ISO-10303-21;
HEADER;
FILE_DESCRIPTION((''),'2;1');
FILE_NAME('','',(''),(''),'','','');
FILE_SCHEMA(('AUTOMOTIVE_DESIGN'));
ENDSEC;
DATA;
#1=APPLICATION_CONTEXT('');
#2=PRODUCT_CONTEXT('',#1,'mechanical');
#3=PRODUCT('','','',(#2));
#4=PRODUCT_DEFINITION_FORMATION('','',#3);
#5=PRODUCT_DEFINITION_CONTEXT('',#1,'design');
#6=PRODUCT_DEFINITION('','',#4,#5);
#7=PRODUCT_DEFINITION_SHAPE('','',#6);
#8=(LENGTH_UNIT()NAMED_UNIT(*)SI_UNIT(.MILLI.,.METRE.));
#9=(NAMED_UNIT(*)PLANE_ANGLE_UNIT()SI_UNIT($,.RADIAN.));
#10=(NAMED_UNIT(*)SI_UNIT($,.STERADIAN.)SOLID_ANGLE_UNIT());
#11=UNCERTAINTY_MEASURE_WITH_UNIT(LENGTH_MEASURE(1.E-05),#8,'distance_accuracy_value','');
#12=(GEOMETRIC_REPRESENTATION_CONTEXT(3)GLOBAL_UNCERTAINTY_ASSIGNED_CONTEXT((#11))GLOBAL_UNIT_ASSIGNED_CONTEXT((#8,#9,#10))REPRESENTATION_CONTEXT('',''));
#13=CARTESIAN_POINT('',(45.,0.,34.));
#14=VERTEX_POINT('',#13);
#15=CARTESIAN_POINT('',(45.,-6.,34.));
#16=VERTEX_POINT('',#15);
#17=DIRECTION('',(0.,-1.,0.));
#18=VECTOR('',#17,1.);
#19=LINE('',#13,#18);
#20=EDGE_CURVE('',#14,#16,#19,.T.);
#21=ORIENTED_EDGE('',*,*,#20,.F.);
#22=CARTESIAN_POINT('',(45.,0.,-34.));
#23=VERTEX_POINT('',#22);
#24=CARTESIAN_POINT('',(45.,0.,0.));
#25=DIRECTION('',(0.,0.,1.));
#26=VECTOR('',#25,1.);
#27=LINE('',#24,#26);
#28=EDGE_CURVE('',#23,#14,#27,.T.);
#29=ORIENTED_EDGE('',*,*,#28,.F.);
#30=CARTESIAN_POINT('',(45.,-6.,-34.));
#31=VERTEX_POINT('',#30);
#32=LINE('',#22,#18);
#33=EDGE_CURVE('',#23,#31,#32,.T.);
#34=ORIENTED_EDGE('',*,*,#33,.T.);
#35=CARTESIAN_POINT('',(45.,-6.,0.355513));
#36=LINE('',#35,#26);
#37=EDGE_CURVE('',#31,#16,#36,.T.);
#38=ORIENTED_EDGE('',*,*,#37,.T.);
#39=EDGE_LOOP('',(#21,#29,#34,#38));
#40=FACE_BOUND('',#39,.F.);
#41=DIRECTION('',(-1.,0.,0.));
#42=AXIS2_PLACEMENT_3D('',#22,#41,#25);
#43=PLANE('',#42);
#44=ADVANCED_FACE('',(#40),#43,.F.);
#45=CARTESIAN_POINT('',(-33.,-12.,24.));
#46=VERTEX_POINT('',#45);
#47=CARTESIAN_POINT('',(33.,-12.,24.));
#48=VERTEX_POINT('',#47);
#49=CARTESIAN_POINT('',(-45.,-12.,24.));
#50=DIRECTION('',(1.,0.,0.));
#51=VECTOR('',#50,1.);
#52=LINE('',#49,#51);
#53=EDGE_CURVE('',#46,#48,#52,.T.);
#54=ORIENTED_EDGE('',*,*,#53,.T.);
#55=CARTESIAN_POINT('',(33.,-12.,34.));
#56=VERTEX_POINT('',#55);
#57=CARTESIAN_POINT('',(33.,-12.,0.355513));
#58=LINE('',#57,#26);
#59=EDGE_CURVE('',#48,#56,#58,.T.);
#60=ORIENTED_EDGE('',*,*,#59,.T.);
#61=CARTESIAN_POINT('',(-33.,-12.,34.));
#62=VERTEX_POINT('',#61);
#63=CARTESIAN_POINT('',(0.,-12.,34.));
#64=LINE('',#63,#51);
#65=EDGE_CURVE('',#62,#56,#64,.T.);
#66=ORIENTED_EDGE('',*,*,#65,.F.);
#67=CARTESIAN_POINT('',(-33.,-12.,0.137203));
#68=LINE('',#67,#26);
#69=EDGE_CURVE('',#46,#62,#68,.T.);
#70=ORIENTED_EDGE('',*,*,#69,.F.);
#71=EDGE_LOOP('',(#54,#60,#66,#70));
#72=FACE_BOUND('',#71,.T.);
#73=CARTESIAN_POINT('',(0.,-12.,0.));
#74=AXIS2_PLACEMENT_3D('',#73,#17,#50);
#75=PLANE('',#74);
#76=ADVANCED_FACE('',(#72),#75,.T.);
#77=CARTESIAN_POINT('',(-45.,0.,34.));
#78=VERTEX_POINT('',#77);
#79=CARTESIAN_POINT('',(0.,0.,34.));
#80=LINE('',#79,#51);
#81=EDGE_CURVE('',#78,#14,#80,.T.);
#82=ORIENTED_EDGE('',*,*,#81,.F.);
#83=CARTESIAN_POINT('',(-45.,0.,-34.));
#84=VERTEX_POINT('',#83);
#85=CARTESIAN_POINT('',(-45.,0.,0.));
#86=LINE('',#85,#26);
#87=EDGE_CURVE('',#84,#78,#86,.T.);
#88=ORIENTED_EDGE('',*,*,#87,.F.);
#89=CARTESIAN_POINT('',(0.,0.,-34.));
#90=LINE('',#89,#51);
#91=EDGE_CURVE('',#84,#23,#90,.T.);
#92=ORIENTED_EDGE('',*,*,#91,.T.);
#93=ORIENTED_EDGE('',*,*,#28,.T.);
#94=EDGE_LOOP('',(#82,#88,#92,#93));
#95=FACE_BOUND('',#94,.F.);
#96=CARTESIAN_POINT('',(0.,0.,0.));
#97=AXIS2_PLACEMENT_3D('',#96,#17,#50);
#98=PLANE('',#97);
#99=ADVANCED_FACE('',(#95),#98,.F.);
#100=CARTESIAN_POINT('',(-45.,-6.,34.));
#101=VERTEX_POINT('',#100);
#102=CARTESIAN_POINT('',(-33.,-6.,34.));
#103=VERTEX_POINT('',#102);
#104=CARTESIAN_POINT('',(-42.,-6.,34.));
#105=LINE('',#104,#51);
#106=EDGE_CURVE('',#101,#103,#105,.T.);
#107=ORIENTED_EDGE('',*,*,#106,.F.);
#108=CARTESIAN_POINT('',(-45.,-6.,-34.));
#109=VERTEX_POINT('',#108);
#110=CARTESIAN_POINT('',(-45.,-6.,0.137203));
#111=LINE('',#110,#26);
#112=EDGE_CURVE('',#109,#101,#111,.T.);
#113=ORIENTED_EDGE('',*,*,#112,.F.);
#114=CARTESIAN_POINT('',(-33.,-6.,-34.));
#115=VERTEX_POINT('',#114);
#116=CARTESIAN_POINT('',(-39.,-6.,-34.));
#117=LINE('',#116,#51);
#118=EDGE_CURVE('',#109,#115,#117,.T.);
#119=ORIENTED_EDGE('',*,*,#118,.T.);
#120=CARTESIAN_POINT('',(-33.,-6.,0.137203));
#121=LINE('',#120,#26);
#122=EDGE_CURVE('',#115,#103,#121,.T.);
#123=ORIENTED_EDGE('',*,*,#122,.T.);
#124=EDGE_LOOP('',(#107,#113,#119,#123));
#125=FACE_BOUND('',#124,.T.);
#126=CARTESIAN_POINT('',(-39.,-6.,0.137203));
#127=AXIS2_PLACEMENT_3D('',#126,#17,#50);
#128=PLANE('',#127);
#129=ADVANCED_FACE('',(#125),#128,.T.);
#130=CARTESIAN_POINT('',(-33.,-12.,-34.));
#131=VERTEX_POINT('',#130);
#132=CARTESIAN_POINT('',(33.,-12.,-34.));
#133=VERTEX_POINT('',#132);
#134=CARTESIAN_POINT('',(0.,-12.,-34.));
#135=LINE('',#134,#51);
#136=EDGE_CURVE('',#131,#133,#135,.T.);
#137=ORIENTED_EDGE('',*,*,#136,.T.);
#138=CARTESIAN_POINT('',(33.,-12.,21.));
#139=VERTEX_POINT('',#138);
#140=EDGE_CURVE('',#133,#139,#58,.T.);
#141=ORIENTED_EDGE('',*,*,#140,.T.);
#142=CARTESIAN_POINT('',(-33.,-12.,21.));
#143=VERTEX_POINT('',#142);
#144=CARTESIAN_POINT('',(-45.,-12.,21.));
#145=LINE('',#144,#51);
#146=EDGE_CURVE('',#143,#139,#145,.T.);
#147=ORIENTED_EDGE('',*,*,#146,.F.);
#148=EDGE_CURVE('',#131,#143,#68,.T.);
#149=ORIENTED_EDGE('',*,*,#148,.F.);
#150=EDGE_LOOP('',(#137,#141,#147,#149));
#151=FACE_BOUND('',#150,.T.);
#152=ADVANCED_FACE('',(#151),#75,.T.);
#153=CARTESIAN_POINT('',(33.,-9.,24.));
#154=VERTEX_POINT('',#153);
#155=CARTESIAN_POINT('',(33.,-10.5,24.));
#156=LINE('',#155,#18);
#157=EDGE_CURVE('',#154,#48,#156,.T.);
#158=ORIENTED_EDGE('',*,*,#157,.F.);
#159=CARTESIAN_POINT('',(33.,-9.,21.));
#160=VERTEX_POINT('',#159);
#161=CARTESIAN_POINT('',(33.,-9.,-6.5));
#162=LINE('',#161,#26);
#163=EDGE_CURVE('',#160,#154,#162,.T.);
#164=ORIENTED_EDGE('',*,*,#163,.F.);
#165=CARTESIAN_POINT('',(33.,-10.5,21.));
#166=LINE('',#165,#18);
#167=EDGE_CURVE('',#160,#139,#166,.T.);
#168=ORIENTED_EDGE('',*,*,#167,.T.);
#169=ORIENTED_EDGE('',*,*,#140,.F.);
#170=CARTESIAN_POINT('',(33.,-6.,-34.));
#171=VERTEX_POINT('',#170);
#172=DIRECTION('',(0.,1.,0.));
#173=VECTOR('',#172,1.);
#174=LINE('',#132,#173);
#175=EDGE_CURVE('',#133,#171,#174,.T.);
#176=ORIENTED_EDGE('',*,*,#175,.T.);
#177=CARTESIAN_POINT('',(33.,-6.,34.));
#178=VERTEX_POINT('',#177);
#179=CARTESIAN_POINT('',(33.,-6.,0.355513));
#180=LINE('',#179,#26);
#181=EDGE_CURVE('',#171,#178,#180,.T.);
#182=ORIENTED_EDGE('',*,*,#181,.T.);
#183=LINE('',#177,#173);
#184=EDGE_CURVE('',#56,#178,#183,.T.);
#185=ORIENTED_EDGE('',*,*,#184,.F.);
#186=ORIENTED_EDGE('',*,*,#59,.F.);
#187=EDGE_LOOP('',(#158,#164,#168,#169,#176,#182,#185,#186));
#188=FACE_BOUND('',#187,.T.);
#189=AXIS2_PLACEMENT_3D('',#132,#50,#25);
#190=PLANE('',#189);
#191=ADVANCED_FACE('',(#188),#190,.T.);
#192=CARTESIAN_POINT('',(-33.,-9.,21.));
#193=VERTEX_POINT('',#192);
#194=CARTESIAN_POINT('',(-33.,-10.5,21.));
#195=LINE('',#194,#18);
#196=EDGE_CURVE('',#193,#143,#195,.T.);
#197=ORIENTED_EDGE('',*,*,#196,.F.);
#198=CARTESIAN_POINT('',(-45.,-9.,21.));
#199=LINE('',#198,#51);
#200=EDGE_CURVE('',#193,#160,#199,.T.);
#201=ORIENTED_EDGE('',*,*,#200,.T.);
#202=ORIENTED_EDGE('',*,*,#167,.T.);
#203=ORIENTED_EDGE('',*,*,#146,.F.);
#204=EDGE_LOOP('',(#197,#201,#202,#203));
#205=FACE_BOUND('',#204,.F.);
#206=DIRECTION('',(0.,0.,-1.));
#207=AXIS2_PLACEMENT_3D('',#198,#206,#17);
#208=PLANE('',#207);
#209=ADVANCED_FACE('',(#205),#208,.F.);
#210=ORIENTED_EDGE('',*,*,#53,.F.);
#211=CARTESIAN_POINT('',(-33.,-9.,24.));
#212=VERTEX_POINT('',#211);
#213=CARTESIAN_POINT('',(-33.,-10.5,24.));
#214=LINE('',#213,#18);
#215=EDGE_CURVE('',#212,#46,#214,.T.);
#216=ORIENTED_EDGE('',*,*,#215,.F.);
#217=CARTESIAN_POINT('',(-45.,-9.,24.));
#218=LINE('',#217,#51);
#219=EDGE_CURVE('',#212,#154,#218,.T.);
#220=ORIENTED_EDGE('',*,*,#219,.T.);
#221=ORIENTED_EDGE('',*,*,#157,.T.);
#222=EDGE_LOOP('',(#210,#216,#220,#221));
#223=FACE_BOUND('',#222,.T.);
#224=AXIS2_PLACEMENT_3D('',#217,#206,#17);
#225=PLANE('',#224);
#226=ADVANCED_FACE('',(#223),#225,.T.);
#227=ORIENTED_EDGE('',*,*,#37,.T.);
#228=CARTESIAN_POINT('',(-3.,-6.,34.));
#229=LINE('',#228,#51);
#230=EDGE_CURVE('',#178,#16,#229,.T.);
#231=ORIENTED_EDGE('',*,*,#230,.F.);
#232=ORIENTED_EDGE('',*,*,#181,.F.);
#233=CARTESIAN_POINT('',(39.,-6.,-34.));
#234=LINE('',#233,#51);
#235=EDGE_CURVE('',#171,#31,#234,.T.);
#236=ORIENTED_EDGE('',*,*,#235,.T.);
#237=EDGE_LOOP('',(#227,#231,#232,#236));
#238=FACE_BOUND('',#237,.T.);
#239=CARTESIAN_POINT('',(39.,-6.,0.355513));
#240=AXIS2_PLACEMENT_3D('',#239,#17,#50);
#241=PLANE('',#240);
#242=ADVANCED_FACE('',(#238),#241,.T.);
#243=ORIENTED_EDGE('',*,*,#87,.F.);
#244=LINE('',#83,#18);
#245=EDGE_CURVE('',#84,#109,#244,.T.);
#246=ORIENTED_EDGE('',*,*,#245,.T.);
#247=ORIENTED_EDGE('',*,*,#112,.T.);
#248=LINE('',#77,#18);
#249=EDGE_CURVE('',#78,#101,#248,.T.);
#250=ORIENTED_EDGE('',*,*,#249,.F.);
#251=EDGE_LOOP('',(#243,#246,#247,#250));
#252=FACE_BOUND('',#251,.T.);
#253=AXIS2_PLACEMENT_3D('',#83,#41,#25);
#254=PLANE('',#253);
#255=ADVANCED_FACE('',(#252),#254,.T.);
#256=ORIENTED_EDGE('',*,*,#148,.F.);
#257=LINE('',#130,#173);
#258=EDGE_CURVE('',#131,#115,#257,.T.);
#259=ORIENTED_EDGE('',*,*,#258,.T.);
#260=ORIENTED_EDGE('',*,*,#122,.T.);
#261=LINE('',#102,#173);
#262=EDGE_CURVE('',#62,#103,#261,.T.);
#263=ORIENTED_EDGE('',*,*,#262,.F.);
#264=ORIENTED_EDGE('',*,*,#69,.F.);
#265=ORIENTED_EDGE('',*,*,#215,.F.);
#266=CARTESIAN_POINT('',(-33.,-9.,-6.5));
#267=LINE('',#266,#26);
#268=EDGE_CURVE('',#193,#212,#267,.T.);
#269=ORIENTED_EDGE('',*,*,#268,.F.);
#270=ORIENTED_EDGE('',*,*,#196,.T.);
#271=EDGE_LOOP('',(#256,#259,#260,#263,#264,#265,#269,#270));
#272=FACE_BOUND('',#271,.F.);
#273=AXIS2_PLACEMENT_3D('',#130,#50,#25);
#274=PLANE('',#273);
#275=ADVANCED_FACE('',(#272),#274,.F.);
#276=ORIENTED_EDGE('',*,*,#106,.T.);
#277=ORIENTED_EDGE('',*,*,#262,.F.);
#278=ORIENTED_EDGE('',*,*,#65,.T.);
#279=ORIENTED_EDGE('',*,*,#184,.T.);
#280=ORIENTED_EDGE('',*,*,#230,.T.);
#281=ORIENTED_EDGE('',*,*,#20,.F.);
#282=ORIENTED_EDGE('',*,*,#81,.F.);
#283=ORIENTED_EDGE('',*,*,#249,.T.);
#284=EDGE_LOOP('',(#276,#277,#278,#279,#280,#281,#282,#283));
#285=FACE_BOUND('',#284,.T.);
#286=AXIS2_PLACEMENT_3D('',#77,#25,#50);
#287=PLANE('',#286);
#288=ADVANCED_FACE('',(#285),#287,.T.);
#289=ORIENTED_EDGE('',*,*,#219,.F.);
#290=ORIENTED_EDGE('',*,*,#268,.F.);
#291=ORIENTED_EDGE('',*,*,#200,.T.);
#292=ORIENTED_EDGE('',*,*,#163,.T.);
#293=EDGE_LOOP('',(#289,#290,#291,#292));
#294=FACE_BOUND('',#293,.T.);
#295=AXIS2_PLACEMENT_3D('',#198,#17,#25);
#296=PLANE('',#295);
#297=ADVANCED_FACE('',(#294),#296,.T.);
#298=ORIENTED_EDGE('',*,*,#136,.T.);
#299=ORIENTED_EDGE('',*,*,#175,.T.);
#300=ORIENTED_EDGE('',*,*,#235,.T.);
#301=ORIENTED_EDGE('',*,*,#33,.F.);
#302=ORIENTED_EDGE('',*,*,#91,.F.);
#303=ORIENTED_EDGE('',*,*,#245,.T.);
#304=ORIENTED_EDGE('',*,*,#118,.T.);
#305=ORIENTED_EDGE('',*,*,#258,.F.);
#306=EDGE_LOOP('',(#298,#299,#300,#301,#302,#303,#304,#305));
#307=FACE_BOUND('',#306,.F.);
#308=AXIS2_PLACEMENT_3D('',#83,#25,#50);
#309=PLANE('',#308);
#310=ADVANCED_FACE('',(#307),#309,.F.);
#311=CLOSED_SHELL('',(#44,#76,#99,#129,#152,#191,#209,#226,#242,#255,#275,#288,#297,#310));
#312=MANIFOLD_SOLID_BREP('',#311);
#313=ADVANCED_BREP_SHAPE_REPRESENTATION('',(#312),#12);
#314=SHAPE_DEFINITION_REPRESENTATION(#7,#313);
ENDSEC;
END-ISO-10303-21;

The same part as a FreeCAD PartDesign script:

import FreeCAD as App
import Part
import Sketcher
from FreeCAD import Vector


def add_polygon(sketch, points):
    """Adds a closed chain of lines whose ends are joined by coincident constraints."""
    first, n = sketch.GeometryCount, len(points)
    for a, b in zip(points, points[1:] + points[:1]):
        sketch.addGeometry(Part.LineSegment(App.Vector(*a, 0), App.Vector(*b, 0)), False)
    for i in range(n):
        sketch.addConstraint(Sketcher.Constraint("Coincident", first + i, 2, first + (i + 1) % n, 1))

doc = App.newDocument("Part")
body = doc.addObject("PartDesign::Body", "Body")

# Sketch on XZ plane
sketch1 = body.newObject("Sketcher::SketchObject", "Sketch")
sketch1.AttachmentSupport = (doc.getObject("XZ_Plane"), [""])
sketch1.MapMode = "FlatFace"
add_polygon(sketch1, [(-20, 34), (-20, -34), (20, -34), (20, 34)])  # lines 0-3
sketch1.addConstraint(Sketcher.Constraint("Vertical", 0))
sketch1.addConstraint(Sketcher.Constraint("Horizontal", 1))
sketch1.addConstraint(Sketcher.Constraint("Vertical", 2))
sketch1.addConstraint(Sketcher.Constraint("Horizontal", 3))
sketch1.addConstraint(Sketcher.Constraint("Symmetric", 0, 2, 2, 2, -1, 1))
sketch1.addConstraint(Sketcher.Constraint("DistanceX", 1, 1, 1, 2, 40.0))
sketch1.addConstraint(Sketcher.Constraint("DistanceY", 0, 2, 0, 1, 68.0))
pad1 = body.newObject("PartDesign::Pad", "Pad")
pad1.Profile = sketch1
pad1.Length = 12

# Sketch on YZ plane
sketch2 = body.newObject("Sketcher::SketchObject", "Sketch001")
sketch2.AttachmentSupport = (doc.getObject("YZ_Plane"), [""])
sketch2.MapMode = "FlatFace"
sketch2.AttachmentOffset = App.Placement(Vector(0, 0, 20), App.Rotation())
add_polygon(sketch2, [(-12, 24), (-12, 21), (-7, 21), (-7, 24)])  # lines 0-3
sketch2.addConstraint(Sketcher.Constraint("Vertical", 0))
sketch2.addConstraint(Sketcher.Constraint("Horizontal", 1))
sketch2.addConstraint(Sketcher.Constraint("Vertical", 2))
sketch2.addConstraint(Sketcher.Constraint("Horizontal", 3))
sketch2.addConstraint(Sketcher.Constraint("DistanceX", 1, 1, 1, 2, 5.0))
sketch2.addConstraint(Sketcher.Constraint("DistanceY", 0, 2, 0, 1, 3.0))
sketch2.addConstraint(Sketcher.Constraint("DistanceX", 0, 2, -1, 1, 12.0))
sketch2.addConstraint(Sketcher.Constraint("DistanceY", -1, 1, 0, 2, 21.0))
pocket1 = body.newObject("PartDesign::Pocket", "Pocket")
pocket1.Profile = sketch2
pocket1.Length = 59
body2 = doc.addObject("PartDesign::Body", "Body001")

# Sketch on XZ plane
sketch3 = body2.newObject("Sketcher::SketchObject", "Sketch002")
sketch3.AttachmentSupport = (doc.getObject("XZ_Plane001"), [""])
sketch3.MapMode = "FlatFace"
add_polygon(sketch3, [(-45, 34), (-45, -34), (45, -34), (45, 34)])  # lines 0-3
sketch3.addConstraint(Sketcher.Constraint("Vertical", 0))
sketch3.addConstraint(Sketcher.Constraint("Horizontal", 1))
sketch3.addConstraint(Sketcher.Constraint("Vertical", 2))
sketch3.addConstraint(Sketcher.Constraint("Horizontal", 3))
sketch3.addConstraint(Sketcher.Constraint("Symmetric", 0, 2, 2, 2, -1, 1))
sketch3.addConstraint(Sketcher.Constraint("DistanceX", 1, 1, 1, 2, 90.0))
sketch3.addConstraint(Sketcher.Constraint("DistanceY", 0, 2, 0, 1, 68.0))
pad2 = body2.newObject("PartDesign::Pad", "Pad001")
pad2.Profile = sketch3
pad2.Length = 12

# Sketch on YZ plane
sketch4 = body2.newObject("Sketcher::SketchObject", "Sketch003")
sketch4.AttachmentSupport = (doc.getObject("YZ_Plane001"), [""])
sketch4.MapMode = "FlatFace"
sketch4.AttachmentOffset = App.Placement(Vector(0, 0, -45), App.Rotation())
add_polygon(sketch4, [(-9, 24), (-9, 21), (-12, 21), (-12, 24)])  # lines 0-3
sketch4.addConstraint(Sketcher.Constraint("Vertical", 0))
sketch4.addConstraint(Sketcher.Constraint("Horizontal", 1))
sketch4.addConstraint(Sketcher.Constraint("Vertical", 2))
sketch4.addConstraint(Sketcher.Constraint("Horizontal", 3))
sketch4.addConstraint(Sketcher.Constraint("Equal", 3, 0))
sketch4.addConstraint(Sketcher.Constraint("DistanceX", 1, 2, 1, 1, 3.0))
sketch4.addConstraint(Sketcher.Constraint("DistanceX", 0, 2, -1, 1, 9.0))
sketch4.addConstraint(Sketcher.Constraint("DistanceY", -1, 1, 0, 2, 21.0))
pocket2 = body2.newObject("PartDesign::Pocket", "Pocket001")
pocket2.Profile = sketch4
pocket2.Length = 200
pocket2.Reversed = True

# Sketch on XZ plane
sketch5 = body2.newObject("Sketcher::SketchObject", "Sketch004")
sketch5.AttachmentSupport = (doc.getObject("XZ_Plane001"), [""])
sketch5.MapMode = "FlatFace"
sketch5.AttachmentOffset = App.Placement(Vector(0, 0, 12), App.Rotation())
add_polygon(sketch5, [(-45, 34), (-45, -34), (-33, -34), (-33, 34)])  # lines 0-3
add_polygon(sketch5, [(33, 35), (33, -34), (45, -34), (45, 35)])  # lines 4-7
sketch5.addConstraint(Sketcher.Constraint("Vertical", 0))
sketch5.addConstraint(Sketcher.Constraint("Horizontal", 1))
sketch5.addConstraint(Sketcher.Constraint("Vertical", 2))
sketch5.addConstraint(Sketcher.Constraint("Horizontal", 3))
sketch5.addConstraint(Sketcher.Constraint("Vertical", 4))
sketch5.addConstraint(Sketcher.Constraint("Horizontal", 5))
sketch5.addConstraint(Sketcher.Constraint("Vertical", 6))
sketch5.addConstraint(Sketcher.Constraint("Horizontal", 7))
sketch5.addConstraint(Sketcher.Constraint("Symmetric", 1, 2, 4, 2, -2))
sketch5.addConstraint(Sketcher.Constraint("Equal", 3, 5))
sketch5.addConstraint(Sketcher.Constraint("DistanceX", 1, 1, 1, 2, 12.0))
sketch5.addConstraint(Sketcher.Constraint("DistanceX", 0, 2, -1, 1, 45.0))
sketch5.addConstraint(Sketcher.Constraint("DistanceY", 0, 2, -1, 1, 34.0))
sketch5.addConstraint(Sketcher.Constraint("DistanceY", 0, 2, 0, 1, 68.274407))
sketch5.addConstraint(Sketcher.Constraint("DistanceY", 4, 2, 4, 1, 68.711026))
pocket3 = body2.newObject("PartDesign::Pocket", "Pocket002")
pocket3.Profile = sketch5
pocket3.Length = 6
body.Visibility = False

doc.recompute()
